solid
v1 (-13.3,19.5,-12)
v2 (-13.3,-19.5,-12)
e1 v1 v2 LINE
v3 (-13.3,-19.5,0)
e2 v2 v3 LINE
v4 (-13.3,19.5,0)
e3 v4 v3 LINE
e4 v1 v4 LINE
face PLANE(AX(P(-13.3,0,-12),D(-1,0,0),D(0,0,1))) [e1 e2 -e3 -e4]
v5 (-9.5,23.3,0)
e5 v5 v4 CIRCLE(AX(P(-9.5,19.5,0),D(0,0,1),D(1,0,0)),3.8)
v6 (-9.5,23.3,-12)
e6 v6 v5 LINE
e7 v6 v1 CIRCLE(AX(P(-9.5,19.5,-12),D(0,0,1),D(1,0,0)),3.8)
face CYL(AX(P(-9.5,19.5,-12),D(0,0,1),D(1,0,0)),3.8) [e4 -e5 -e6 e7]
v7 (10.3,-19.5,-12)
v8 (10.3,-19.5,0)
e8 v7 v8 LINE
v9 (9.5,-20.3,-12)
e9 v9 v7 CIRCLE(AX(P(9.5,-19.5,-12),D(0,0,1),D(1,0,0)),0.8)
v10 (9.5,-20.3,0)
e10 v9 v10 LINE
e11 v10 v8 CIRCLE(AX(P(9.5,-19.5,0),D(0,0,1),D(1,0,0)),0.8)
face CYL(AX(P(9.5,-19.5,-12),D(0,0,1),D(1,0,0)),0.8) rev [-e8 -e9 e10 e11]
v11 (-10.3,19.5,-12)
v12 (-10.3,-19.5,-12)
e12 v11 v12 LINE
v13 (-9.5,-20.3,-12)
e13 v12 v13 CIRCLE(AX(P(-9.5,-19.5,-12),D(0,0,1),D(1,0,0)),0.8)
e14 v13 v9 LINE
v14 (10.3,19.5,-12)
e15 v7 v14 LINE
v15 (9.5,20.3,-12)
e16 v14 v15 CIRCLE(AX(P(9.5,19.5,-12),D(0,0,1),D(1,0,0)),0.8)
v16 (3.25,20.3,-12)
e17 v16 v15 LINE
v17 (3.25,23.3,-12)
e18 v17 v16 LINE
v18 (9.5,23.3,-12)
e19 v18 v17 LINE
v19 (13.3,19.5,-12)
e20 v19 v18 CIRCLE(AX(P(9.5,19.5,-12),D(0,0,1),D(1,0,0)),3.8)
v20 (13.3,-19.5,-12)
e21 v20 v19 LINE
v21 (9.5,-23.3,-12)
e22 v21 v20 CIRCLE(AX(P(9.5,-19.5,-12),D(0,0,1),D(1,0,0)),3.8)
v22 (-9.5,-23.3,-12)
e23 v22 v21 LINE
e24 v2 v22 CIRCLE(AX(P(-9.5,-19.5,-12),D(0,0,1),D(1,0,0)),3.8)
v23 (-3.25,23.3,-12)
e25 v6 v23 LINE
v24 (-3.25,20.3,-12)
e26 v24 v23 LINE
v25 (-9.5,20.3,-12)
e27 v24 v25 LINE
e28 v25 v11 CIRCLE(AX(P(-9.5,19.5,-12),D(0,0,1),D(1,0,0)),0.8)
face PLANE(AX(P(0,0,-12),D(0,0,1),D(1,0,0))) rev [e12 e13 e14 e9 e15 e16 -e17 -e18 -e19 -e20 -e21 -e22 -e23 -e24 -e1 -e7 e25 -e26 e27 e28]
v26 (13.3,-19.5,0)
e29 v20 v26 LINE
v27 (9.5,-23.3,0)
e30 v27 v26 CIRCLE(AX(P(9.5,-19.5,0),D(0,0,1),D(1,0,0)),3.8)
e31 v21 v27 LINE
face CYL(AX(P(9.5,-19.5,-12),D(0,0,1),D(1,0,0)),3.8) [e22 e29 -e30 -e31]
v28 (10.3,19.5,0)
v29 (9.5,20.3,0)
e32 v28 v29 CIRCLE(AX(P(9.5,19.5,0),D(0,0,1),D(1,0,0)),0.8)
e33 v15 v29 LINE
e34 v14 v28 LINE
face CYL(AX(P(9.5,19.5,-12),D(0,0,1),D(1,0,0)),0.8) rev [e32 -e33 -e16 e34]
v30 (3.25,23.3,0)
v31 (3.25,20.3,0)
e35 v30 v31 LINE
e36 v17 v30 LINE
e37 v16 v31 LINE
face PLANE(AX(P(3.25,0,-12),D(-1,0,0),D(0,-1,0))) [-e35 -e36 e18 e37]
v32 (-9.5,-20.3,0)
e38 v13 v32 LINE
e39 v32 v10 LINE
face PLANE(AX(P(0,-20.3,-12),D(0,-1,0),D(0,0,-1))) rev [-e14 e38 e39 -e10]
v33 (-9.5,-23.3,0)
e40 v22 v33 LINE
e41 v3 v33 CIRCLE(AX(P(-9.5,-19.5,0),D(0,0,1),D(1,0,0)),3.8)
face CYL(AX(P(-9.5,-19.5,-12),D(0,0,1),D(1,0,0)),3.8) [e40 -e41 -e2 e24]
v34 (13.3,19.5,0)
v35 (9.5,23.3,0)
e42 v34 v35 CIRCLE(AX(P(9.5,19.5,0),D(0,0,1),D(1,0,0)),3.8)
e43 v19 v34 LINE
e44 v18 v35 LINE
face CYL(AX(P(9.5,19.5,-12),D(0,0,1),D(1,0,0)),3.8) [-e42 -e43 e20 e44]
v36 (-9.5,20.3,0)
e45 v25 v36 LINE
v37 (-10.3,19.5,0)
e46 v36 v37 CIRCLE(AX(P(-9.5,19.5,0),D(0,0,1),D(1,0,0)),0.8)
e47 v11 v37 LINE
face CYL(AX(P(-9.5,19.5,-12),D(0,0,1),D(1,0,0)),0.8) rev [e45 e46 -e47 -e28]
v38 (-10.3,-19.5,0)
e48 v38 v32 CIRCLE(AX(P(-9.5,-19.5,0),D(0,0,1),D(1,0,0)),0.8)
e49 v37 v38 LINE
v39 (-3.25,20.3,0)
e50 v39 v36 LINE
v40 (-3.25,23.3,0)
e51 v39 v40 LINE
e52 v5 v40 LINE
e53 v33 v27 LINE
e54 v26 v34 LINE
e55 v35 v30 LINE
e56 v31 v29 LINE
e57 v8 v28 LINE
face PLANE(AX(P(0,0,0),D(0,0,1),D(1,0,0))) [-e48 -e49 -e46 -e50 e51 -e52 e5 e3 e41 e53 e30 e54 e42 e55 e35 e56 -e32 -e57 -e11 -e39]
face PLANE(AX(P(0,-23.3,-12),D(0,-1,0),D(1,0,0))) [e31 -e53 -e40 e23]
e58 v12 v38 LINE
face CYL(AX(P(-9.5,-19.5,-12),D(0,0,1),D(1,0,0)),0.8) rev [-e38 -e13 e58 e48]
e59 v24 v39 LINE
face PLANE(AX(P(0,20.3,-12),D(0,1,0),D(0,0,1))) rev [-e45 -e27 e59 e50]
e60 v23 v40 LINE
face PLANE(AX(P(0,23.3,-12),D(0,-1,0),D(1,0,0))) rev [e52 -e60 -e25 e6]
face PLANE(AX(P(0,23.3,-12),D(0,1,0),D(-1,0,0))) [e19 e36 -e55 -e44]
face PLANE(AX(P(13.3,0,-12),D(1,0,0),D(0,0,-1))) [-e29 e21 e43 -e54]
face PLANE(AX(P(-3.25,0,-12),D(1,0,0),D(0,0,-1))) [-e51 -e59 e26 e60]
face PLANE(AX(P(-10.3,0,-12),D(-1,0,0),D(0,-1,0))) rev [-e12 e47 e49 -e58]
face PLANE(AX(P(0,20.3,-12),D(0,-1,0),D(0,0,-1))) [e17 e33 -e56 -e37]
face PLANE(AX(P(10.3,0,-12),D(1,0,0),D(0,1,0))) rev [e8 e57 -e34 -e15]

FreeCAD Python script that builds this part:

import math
import FreeCAD as App
import Part
import Sketcher

doc = App.newDocument("Part")
params = doc.addObject("Spreadsheet::Sheet", "Params")
for row, (alias, value) in enumerate([
    ("sketch1_radius", "3.8 mm"),
    ("sketch1_radius2", "0.8 mm"),
    ("sketch1_width", "19 mm"),
    ("sketch1_height", "39 mm"),
    ("sketch1_width2", "6.25 mm"),
    ("pad1_length", "12 mm"),
], start=1):
    params.set(f"A{row}", alias)
    params.set(f"B{row}", "=" + value)
    params.setAlias(f"B{row}", alias)

body = doc.addObject("PartDesign::Body", "Body")

sketch1 = body.newObject("Sketcher::SketchObject", "Sketch")
sketch1.AttachmentSupport = (doc.getObject("XY_Plane"), [""])
sketch1.MapMode = "FlatFace"
sketch1.addGeometry(Part.LineSegment(App.Vector(-3.2, 20.3, 0), App.Vector(-3.2, 23.3, 0)), False)
sketch1.addGeometry(Part.LineSegment(App.Vector(-3.2, 23.3, 0), App.Vector(-9.5, 23.3, 0)), False)
sketch1.addGeometry(Part.ArcOfCircle(Part.Circle(App.Vector(-9.5, 19.5, 0), App.Vector(0, 0, 1), 3.8), math.radians(90), math.radians(180)), False)
sketch1.addGeometry(Part.LineSegment(App.Vector(-13.3, 19.5, 0), App.Vector(-13.3, -19.5, 0)), False)
sketch1.addGeometry(Part.ArcOfCircle(Part.Circle(App.Vector(-9.5, -19.5, 0), App.Vector(0, 0, 1), 3.8), math.radians(180), math.radians(270)), False)
sketch1.addGeometry(Part.LineSegment(App.Vector(-9.5, -23.3, 0), App.Vector(9.5, -23.3, 0)), False)
sketch1.addGeometry(Part.ArcOfCircle(Part.Circle(App.Vector(9.5, -19.5, 0), App.Vector(0, 0, 1), 3.8), math.radians(-90), math.radians(0)), False)
sketch1.addGeometry(Part.LineSegment(App.Vector(13.3, -19.5, 0), App.Vector(13.3, 19.5, 0)), False)
sketch1.addGeometry(Part.ArcOfCircle(Part.Circle(App.Vector(9.5, 19.5, 0), App.Vector(0, 0, 1), 3.8), math.radians(0), math.radians(90)), False)
sketch1.addGeometry(Part.LineSegment(App.Vector(9.5, 23.3, 0), App.Vector(3.2, 23.3, 0)), False)
sketch1.addGeometry(Part.LineSegment(App.Vector(3.2, 23.3, 0), App.Vector(3.2, 20.3, 0)), False)
sketch1.addGeometry(Part.LineSegment(App.Vector(3.2, 20.3, 0), App.Vector(9.5, 20.3, 0)), False)
sketch1.addGeometry(Part.ArcOfCircle(Part.Circle(App.Vector(9.5, 19.5, 0), App.Vector(0, 0, 1), 0.8), math.radians(0), math.radians(90)), False)
sketch1.addGeometry(Part.LineSegment(App.Vector(10.3, 19.5, 0), App.Vector(10.3, -19.5, 0)), False)
sketch1.addGeometry(Part.ArcOfCircle(Part.Circle(App.Vector(9.5, -19.5, 0), App.Vector(0, 0, 1), 0.8), math.radians(-90), math.radians(0)), False)
sketch1.addGeometry(Part.LineSegment(App.Vector(9.5, -20.3, 0), App.Vector(-9.5, -20.3, 0)), False)
sketch1.addGeometry(Part.ArcOfCircle(Part.Circle(App.Vector(-9.5, -19.5, 0), App.Vector(0, 0, 1), 0.8), math.radians(180), math.radians(270)), False)
sketch1.addGeometry(Part.LineSegment(App.Vector(-10.3, -19.5, 0), App.Vector(-10.3, 19.5, 0)), False)
sketch1.addGeometry(Part.ArcOfCircle(Part.Circle(App.Vector(-9.5, 19.5, 0), App.Vector(0, 0, 1), 0.8), math.radians(90), math.radians(180)), False)
sketch1.addGeometry(Part.LineSegment(App.Vector(-9.5, 20.3, 0), App.Vector(-3.2, 20.3, 0)), False)
sketch1.addConstraint(Sketcher.Constraint("Coincident", 0, 2, 1, 1))
sketch1.addConstraint(Sketcher.Constraint("Tangent", 1, 2, 2, 1))
sketch1.addConstraint(Sketcher.Constraint("Tangent", 2, 2, 3, 1))
sketch1.addConstraint(Sketcher.Constraint("Tangent", 3, 2, 4, 1))
sketch1.addConstraint(Sketcher.Constraint("Tangent", 4, 2, 5, 1))
sketch1.addConstraint(Sketcher.Constraint("Tangent", 5, 2, 6, 1))
sketch1.addConstraint(Sketcher.Constraint("Tangent", 6, 2, 7, 1))
sketch1.addConstraint(Sketcher.Constraint("Tangent", 7, 2, 8, 1))
sketch1.addConstraint(Sketcher.Constraint("Tangent", 8, 2, 9, 1))
sketch1.addConstraint(Sketcher.Constraint("Coincident", 9, 2, 10, 1))
sketch1.addConstraint(Sketcher.Constraint("Coincident", 10, 2, 11, 1))
sketch1.addConstraint(Sketcher.Constraint("Tangent", 11, 2, 12, 2))
sketch1.addConstraint(Sketcher.Constraint("Tangent", 12, 1, 13, 1))
sketch1.addConstraint(Sketcher.Constraint("Tangent", 13, 2, 14, 2))
sketch1.addConstraint(Sketcher.Constraint("Tangent", 14, 1, 15, 1))
sketch1.addConstraint(Sketcher.Constraint("Tangent", 15, 2, 16, 2))
sketch1.addConstraint(Sketcher.Constraint("Tangent", 16, 1, 17, 1))
sketch1.addConstraint(Sketcher.Constraint("Tangent", 17, 2, 18, 2))
sketch1.addConstraint(Sketcher.Constraint("Tangent", 18, 1, 19, 1))
sketch1.addConstraint(Sketcher.Constraint("Coincident", 19, 2, 0, 1))
sketch1.addConstraint(Sketcher.Constraint("Vertical", 0))
sketch1.addConstraint(Sketcher.Constraint("Horizontal", 1))
sketch1.addConstraint(Sketcher.Constraint("Vertical", 3))
sketch1.addConstraint(Sketcher.Constraint("Horizontal", 5))
sketch1.addConstraint(Sketcher.Constraint("Vertical", 7))
sketch1.addConstraint(Sketcher.Constraint("Horizontal", 9))
sketch1.addConstraint(Sketcher.Constraint("Vertical", 10))
sketch1.addConstraint(Sketcher.Constraint("Horizontal", 11))
sketch1.addConstraint(Sketcher.Constraint("Vertical", 13))
sketch1.addConstraint(Sketcher.Constraint("Horizontal", 15))
sketch1.addConstraint(Sketcher.Constraint("Vertical", 17))
sketch1.addConstraint(Sketcher.Constraint("Horizontal", 19))
sketch1.addConstraint(Sketcher.Constraint("Coincident", 12, 3, 8, 3))
sketch1.addConstraint(Sketcher.Constraint("Coincident", 14, 3, 6, 3))
sketch1.addConstraint(Sketcher.Constraint("Coincident", 16, 3, 4, 3))
sketch1.addConstraint(Sketcher.Constraint("Coincident", 18, 3, 2, 3))
sketch1.addConstraint(Sketcher.Constraint("Equal", 2, 4))
sketch1.addConstraint(Sketcher.Constraint("Equal", 4, 6))
sketch1.addConstraint(Sketcher.Constraint("Equal", 6, 8))
sketch1.addConstraint(Sketcher.Constraint("Symmetric", 2, 3, 6, 3, -1, 1))
sketch1.addConstraint(Sketcher.Constraint("Symmetric", 0, 2, 9, 2, -2))
sketch1.addConstraint(Sketcher.Constraint("Radius", 2, 3.8))
sketch1.addConstraint(Sketcher.Constraint("Radius", 12, 0.8))
sketch1.addConstraint(Sketcher.Constraint("DistanceX", 5, 1, 5, 2, 19.0))
sketch1.addConstraint(Sketcher.Constraint("DistanceY", 3, 2, 3, 1, 39.0))
sketch1.addConstraint(Sketcher.Constraint("DistanceX", 1, 2, 1, 1, 6.25))
sketch1.setExpression("Constraints[41]", "Params.sketch1_radius")
sketch1.setExpression("Constraints[42]", "Params.sketch1_radius2")
sketch1.setExpression("Constraints[43]", "Params.sketch1_width")
sketch1.setExpression("Constraints[44]", "Params.sketch1_height")
sketch1.setExpression("Constraints[45]", "Params.sketch1_width2")
pad1 = body.newObject("PartDesign::Pad", "Pad")
pad1.Profile = sketch1
pad1.setExpression("Length", "Params.pad1_length")
pad1.Reversed = True

doc.recompute()
